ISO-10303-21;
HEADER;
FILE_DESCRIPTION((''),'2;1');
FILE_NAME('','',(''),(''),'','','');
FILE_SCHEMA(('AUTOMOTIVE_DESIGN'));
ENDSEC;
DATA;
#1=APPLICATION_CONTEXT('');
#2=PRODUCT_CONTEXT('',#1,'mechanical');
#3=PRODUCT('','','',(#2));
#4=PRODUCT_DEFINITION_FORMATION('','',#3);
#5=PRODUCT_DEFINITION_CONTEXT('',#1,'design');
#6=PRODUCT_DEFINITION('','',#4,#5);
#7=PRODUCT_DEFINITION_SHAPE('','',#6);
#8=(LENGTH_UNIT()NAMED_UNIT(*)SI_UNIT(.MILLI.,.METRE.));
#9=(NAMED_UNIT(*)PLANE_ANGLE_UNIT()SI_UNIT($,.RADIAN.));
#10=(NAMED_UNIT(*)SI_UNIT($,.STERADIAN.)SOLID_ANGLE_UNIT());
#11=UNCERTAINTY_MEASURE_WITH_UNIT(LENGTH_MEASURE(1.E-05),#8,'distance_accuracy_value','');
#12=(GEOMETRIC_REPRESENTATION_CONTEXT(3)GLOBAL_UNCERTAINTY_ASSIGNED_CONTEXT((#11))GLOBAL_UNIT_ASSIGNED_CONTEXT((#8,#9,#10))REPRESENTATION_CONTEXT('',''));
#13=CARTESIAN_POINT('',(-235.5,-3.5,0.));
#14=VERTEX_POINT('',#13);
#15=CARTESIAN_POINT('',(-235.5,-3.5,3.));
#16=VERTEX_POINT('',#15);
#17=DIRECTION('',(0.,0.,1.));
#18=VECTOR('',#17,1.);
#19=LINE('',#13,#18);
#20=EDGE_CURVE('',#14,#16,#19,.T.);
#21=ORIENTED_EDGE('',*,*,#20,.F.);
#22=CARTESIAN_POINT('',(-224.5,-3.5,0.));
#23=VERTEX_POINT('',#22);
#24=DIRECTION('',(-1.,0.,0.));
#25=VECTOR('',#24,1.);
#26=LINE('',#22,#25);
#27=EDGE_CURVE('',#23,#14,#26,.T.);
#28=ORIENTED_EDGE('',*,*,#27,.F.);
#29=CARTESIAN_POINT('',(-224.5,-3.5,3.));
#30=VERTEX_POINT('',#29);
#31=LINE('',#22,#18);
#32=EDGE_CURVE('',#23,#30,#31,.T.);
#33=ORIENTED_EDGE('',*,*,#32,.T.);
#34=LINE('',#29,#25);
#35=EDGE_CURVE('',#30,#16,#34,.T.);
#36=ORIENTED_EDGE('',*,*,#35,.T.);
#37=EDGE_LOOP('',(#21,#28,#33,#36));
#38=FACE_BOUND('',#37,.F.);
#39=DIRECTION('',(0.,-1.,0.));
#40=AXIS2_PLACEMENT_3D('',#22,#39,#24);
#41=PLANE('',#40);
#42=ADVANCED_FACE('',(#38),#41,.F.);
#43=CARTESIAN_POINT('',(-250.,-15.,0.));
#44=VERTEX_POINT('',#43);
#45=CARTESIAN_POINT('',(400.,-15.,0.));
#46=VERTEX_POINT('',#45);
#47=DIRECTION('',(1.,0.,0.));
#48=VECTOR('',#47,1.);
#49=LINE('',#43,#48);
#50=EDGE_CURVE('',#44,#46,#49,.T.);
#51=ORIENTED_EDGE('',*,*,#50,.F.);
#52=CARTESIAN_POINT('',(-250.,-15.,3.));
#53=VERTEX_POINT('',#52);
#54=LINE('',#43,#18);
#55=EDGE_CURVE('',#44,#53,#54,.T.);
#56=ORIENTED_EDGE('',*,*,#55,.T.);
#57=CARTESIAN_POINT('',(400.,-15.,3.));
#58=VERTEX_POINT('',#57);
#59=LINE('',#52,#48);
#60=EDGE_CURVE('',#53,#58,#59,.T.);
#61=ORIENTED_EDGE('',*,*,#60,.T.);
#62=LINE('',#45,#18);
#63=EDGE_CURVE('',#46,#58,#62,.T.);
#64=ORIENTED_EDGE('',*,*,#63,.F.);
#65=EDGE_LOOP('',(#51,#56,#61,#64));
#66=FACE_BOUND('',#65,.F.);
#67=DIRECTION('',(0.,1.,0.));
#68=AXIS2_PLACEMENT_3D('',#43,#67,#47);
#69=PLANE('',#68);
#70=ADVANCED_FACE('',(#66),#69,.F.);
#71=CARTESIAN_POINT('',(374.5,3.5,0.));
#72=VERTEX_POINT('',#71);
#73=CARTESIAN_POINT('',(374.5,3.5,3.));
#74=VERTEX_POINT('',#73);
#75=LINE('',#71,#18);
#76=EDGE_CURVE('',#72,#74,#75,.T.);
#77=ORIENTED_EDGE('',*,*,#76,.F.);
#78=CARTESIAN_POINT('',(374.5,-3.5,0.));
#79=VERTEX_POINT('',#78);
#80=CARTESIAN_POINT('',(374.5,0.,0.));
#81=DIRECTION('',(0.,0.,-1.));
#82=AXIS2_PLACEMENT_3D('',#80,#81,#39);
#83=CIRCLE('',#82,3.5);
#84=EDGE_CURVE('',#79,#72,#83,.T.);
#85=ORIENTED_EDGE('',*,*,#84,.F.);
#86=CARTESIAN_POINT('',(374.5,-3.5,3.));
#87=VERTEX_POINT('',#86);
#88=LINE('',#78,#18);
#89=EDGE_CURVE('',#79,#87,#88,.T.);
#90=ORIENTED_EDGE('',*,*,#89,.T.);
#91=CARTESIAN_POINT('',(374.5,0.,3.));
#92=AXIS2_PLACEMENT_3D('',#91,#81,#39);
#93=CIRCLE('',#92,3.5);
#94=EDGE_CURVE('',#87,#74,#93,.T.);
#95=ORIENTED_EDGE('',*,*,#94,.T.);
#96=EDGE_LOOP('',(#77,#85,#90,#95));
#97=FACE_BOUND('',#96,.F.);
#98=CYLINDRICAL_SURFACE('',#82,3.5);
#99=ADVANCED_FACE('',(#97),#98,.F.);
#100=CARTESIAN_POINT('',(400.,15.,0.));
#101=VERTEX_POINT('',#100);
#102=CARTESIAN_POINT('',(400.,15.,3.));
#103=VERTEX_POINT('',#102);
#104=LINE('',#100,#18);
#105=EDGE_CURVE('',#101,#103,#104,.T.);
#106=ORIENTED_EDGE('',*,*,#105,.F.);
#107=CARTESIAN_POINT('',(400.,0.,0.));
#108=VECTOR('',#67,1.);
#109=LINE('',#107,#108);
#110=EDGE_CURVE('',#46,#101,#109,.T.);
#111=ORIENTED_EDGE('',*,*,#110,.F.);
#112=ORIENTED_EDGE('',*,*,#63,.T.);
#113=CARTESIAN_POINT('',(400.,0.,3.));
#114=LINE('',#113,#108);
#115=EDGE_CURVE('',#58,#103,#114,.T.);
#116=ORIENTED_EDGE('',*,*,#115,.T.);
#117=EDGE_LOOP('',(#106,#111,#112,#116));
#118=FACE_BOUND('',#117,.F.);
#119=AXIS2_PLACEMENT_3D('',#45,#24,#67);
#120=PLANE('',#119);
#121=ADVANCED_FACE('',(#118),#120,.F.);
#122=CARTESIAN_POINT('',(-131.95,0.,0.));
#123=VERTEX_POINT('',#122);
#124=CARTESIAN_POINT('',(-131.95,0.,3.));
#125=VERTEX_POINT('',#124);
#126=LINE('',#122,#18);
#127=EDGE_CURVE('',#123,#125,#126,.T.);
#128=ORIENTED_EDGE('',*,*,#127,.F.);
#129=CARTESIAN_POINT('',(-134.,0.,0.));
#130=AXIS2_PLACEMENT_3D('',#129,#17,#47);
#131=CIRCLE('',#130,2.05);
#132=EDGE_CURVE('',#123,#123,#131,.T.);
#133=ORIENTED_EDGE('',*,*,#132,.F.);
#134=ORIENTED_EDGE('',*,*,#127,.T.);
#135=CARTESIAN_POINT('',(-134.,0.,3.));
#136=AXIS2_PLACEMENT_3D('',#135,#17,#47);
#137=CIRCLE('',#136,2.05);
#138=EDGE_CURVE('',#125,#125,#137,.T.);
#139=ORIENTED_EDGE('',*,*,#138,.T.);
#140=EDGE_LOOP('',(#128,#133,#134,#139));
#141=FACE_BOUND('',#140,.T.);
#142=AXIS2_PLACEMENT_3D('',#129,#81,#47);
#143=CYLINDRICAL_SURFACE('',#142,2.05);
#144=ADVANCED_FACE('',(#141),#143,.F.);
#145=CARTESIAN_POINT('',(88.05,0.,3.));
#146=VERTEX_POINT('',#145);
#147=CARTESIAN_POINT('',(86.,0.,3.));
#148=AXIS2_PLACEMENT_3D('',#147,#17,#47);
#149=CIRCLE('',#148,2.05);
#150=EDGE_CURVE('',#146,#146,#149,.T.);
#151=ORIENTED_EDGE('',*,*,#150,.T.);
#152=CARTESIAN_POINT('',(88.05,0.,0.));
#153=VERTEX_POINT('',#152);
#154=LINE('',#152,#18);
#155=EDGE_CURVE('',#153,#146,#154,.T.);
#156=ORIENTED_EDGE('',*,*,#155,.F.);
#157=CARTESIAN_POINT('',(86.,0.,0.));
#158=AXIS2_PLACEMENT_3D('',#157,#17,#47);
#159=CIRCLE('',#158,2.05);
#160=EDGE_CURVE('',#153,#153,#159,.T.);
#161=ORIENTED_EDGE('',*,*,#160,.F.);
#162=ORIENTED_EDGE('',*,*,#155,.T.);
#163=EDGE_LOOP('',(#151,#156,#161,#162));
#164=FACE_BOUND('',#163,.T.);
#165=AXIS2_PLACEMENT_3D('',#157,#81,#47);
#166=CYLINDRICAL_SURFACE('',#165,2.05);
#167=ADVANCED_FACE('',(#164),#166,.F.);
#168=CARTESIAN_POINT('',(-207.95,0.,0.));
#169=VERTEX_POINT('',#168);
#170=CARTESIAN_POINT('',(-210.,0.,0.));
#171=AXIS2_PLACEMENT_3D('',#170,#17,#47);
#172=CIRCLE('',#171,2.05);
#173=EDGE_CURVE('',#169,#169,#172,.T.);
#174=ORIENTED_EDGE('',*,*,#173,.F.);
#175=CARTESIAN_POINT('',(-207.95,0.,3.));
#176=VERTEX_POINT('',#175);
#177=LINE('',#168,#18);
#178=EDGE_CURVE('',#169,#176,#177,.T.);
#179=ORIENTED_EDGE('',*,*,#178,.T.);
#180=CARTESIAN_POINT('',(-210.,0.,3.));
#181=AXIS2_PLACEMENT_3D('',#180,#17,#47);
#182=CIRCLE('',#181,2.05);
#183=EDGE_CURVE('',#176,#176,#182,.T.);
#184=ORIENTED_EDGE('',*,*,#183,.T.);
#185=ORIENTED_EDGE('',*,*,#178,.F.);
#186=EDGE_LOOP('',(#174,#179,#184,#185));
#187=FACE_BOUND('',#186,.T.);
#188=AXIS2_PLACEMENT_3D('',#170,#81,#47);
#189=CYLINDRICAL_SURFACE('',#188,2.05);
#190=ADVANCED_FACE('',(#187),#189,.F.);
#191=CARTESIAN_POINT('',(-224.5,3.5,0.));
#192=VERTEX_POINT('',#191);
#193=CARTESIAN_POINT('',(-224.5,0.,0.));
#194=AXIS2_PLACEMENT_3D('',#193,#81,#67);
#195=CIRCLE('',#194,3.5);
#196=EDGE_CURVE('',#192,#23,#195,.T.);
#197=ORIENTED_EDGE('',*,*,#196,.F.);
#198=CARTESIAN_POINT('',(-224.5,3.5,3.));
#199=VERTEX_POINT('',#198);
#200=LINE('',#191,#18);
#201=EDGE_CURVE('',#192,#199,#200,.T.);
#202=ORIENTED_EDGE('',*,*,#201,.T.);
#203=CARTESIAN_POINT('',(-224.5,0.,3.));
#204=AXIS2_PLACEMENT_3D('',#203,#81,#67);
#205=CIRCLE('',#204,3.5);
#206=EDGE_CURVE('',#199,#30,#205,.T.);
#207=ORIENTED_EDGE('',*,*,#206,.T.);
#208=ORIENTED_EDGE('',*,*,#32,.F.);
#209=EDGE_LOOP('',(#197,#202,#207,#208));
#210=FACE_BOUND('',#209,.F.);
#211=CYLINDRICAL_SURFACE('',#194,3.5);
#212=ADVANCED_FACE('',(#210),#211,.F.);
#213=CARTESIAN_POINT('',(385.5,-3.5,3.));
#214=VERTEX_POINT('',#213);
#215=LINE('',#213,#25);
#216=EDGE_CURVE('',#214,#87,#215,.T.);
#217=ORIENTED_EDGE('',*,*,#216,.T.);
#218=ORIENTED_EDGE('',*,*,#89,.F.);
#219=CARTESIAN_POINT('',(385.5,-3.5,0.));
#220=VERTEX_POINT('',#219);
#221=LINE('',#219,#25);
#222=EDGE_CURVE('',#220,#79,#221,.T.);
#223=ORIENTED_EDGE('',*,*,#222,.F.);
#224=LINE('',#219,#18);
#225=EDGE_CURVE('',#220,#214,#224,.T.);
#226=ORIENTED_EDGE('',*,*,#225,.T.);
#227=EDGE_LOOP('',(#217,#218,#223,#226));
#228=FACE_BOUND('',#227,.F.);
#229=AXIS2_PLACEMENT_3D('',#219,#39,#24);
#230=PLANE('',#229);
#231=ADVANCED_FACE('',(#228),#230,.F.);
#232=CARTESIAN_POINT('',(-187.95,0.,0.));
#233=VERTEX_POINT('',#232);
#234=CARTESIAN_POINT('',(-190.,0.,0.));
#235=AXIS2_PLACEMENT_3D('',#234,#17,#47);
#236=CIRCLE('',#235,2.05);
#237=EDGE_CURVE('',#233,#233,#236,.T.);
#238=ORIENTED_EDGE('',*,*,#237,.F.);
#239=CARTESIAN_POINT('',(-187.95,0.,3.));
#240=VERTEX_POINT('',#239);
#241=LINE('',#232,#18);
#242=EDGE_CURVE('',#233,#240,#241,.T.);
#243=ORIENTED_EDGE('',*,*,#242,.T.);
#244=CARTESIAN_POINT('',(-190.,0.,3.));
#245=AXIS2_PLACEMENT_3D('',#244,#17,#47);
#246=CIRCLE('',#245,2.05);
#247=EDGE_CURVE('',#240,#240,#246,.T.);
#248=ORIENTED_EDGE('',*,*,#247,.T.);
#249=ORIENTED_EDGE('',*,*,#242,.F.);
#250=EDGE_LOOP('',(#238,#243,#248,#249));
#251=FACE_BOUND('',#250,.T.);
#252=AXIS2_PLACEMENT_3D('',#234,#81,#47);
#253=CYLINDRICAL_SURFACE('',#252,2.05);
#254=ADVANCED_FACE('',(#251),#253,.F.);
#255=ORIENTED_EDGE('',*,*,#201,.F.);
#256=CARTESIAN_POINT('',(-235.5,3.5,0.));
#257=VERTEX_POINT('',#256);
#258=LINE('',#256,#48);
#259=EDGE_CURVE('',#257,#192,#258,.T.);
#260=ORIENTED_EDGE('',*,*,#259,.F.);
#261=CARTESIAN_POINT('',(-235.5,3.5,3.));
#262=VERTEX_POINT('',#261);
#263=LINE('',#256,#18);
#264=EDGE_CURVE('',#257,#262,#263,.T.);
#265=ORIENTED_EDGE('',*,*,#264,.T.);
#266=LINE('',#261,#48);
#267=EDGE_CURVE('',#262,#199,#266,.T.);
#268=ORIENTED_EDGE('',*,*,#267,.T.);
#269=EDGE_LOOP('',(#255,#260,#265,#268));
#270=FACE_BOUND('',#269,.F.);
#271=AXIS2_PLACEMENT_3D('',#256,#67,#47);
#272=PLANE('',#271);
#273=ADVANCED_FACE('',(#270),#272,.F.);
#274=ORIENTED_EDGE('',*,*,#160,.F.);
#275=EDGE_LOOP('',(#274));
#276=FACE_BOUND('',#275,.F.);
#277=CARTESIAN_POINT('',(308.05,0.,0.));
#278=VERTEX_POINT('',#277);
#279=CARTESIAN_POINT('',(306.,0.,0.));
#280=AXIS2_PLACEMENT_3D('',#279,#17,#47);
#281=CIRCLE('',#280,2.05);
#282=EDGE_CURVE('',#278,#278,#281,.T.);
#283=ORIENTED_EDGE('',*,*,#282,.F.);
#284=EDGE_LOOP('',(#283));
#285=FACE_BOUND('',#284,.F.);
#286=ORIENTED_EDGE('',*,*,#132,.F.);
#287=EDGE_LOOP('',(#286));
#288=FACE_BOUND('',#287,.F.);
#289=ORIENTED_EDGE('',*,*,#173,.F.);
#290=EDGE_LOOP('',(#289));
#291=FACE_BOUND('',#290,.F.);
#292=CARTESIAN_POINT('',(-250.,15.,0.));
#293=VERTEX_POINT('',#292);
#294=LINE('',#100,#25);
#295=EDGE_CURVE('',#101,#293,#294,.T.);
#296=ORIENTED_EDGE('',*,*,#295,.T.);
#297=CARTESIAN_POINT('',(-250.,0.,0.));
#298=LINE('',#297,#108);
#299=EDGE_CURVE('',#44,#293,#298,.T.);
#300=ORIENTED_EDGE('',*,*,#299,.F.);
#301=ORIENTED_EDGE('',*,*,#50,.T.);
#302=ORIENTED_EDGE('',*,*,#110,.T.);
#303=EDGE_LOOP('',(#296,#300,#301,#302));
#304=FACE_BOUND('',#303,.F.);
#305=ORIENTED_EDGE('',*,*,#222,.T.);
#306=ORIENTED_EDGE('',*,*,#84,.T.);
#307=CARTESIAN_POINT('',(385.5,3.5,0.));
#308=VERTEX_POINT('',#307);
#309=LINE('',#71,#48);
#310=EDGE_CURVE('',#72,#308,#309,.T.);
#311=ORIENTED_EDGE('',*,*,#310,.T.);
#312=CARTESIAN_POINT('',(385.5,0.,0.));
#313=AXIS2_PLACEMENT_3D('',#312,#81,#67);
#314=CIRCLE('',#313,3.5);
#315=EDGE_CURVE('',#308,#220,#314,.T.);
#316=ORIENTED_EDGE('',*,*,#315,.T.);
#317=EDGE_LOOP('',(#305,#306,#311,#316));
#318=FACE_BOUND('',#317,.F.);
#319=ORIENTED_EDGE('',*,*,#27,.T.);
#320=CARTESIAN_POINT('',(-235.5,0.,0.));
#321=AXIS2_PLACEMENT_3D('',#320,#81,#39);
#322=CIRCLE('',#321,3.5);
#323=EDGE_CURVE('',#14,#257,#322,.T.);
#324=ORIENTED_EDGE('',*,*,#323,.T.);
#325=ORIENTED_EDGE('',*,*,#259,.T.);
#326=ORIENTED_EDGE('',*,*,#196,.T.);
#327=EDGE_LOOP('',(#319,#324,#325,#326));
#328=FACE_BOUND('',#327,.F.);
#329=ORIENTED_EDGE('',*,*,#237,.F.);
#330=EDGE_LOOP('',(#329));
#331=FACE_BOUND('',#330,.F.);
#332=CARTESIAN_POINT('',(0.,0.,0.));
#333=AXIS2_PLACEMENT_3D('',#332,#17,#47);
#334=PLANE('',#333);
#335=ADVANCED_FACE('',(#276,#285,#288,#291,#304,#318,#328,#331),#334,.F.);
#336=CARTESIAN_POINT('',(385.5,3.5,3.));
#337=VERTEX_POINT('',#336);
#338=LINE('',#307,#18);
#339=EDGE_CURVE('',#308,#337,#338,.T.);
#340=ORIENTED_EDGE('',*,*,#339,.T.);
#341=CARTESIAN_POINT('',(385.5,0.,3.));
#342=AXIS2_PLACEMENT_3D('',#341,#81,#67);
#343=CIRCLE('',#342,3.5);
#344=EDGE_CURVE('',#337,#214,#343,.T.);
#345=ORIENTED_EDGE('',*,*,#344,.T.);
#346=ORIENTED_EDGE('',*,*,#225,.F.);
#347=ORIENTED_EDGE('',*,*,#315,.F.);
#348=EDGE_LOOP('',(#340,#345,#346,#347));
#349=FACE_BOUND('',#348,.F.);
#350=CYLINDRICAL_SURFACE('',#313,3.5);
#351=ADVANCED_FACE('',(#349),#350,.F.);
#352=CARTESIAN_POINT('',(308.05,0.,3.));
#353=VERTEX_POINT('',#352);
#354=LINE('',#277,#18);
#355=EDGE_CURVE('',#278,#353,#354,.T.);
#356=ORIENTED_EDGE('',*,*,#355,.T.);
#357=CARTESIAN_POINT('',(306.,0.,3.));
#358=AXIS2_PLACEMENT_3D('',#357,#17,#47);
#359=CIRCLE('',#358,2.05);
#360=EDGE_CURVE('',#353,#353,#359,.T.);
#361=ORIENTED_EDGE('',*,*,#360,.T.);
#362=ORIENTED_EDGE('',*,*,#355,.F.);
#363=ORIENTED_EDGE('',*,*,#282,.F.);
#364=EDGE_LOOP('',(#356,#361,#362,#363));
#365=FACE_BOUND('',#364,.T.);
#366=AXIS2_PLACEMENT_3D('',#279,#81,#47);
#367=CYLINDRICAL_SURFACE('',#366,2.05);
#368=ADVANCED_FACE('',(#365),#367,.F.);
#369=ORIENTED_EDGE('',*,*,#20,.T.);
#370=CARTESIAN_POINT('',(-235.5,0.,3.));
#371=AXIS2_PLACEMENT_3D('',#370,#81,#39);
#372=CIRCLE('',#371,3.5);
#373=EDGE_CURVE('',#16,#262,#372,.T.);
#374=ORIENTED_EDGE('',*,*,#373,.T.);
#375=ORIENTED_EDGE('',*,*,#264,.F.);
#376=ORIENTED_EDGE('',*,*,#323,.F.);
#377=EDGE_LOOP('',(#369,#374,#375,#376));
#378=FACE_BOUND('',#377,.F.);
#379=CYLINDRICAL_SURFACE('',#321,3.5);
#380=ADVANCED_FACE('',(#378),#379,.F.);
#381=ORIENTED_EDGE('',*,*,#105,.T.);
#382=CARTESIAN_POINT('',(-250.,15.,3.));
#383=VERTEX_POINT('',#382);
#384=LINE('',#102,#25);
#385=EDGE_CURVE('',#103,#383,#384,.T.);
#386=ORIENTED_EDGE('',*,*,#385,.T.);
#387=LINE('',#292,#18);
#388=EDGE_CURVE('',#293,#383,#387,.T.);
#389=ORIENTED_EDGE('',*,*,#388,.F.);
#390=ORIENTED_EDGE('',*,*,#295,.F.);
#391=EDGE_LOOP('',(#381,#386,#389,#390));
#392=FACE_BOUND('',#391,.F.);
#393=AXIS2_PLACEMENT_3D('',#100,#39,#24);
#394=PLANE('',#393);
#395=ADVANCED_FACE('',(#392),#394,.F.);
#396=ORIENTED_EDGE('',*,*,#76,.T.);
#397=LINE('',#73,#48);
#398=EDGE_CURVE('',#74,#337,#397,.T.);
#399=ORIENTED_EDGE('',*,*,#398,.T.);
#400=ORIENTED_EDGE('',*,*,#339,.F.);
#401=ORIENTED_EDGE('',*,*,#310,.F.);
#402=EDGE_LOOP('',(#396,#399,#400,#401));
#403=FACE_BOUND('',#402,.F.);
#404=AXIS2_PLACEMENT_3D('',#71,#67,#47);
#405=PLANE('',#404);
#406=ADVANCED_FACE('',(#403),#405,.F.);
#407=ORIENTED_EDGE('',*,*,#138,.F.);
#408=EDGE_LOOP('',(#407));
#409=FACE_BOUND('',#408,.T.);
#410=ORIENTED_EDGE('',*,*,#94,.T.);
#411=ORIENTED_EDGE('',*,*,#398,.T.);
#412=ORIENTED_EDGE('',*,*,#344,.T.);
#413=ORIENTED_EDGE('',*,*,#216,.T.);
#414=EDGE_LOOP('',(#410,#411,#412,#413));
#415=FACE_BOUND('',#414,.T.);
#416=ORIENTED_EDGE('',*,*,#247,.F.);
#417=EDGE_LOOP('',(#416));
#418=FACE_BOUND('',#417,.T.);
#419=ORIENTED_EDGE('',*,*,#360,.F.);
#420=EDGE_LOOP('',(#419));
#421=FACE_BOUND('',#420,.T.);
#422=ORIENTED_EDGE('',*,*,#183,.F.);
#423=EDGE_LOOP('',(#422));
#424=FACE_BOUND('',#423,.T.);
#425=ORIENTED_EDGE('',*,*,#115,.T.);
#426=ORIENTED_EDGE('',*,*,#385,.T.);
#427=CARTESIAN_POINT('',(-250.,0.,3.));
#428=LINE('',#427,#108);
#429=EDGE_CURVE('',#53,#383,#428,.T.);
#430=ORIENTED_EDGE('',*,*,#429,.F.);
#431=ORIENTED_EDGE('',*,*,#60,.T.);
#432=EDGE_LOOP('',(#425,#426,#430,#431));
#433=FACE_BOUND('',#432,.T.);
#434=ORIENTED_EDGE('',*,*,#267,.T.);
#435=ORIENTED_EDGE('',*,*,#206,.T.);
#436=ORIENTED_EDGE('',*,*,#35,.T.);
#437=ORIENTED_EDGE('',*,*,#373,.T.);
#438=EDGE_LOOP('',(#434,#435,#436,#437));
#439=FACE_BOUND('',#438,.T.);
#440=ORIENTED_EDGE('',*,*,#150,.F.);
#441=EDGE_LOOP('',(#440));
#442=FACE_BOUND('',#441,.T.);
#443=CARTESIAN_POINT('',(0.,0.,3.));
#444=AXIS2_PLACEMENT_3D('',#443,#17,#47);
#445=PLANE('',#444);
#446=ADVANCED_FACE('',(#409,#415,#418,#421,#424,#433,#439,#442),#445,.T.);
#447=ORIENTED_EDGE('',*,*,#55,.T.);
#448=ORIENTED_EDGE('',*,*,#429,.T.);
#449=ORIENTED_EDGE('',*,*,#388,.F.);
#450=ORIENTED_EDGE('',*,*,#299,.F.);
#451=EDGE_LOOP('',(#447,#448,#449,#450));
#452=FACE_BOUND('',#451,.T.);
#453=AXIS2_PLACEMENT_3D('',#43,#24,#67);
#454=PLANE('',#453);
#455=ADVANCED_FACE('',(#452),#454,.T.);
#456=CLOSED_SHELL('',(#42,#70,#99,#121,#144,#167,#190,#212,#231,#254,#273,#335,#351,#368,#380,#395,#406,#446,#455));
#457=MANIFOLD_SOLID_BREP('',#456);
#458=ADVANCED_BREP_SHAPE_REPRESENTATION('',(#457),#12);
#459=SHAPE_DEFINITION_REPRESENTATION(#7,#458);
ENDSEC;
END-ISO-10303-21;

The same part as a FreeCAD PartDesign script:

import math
import FreeCAD as App
import Part
import Sketcher

V = App.Vector
Q = App.Units.Quantity

doc = App.newDocument("Part")
body = doc.addObject("PartDesign::Body", "Body")

# Sketch on XY plane
sketch1 = doc.addObject("Sketcher::SketchObject", "Sketch")
body.addObject(sketch1)
sketch1.AttachmentSupport = (doc.XY_Plane, [""])
sketch1.MapMode = "FlatFace"
sketch1.addGeometry(Part.LineSegment(V(-250, 15, 0), V(-250, -15, 0)), False)
sketch1.addGeometry(Part.LineSegment(V(-250, -15, 0), V(400, -15, 0)), False)
sketch1.addGeometry(Part.LineSegment(V(400, -15, 0), V(400, 15, 0)), False)
sketch1.addGeometry(Part.LineSegment(V(400, 15, 0), V(-250, 15, 0)), False)
sketch1.addGeometry(Part.LineSegment(V(-235.5, 3.5, 0), V(-224.5, 3.5, 0)), False)
sketch1.addGeometry(Part.ArcOfCircle(Part.Circle(V(-224.5, 0, 0), V(0, 0, 1), 3.5), math.radians(-90), math.radians(90)), False)
sketch1.addGeometry(Part.LineSegment(V(-224.5, -3.5, 0), V(-235.5, -3.5, 0)), False)
sketch1.addGeometry(Part.ArcOfCircle(Part.Circle(V(-235.5, 0, 0), V(0, 0, 1), 3.5), math.radians(90), math.radians(270)), False)
sketch1.addGeometry(Part.Circle(V(-210, 0, 0), V(0, 0, 1), 2.05), False)
sketch1.addGeometry(Part.Circle(V(-190, 0, 0), V(0, 0, 1), 2.05), False)
sketch1.addGeometry(Part.Circle(V(-134, 0, 0), V(0, 0, 1), 2.05), False)
sketch1.addGeometry(Part.Circle(V(86, 0, 0), V(0, 0, 1), 2.05), False)
sketch1.addGeometry(Part.Circle(V(306, 0, 0), V(0, 0, 1), 2.05), False)
sketch1.addGeometry(Part.LineSegment(V(374.5, 3.5, 0), V(385.5, 3.5, 0)), False)
sketch1.addGeometry(Part.ArcOfCircle(Part.Circle(V(385.5, 0, 0), V(0, 0, 1), 3.5), math.radians(-90), math.radians(90)), False)
sketch1.addGeometry(Part.LineSegment(V(385.5, -3.5, 0), V(374.5, -3.5, 0)), False)
sketch1.addGeometry(Part.ArcOfCircle(Part.Circle(V(374.5, 0, 0), V(0, 0, 1), 3.5), math.radians(90), math.radians(270)), False)
sketch1.addConstraint(Sketcher.Constraint("Coincident", 0, 2, 1, 1))
sketch1.addConstraint(Sketcher.Constraint("Coincident", 1, 2, 2, 1))
sketch1.addConstraint(Sketcher.Constraint("Coincident", 2, 2, 3, 1))
sketch1.addConstraint(Sketcher.Constraint("Coincident", 3, 2, 0, 1))
sketch1.addConstraint(Sketcher.Constraint("Tangent", 4, 2, 5, 2))
sketch1.addConstraint(Sketcher.Constraint("Tangent", 5, 1, 6, 1))
sketch1.addConstraint(Sketcher.Constraint("Tangent", 6, 2, 7, 2))
sketch1.addConstraint(Sketcher.Constraint("Tangent", 7, 1, 4, 1))
sketch1.addConstraint(Sketcher.Constraint("Tangent", 13, 2, 14, 2))
sketch1.addConstraint(Sketcher.Constraint("Tangent", 14, 1, 15, 1))
sketch1.addConstraint(Sketcher.Constraint("Tangent", 15, 2, 16, 2))
sketch1.addConstraint(Sketcher.Constraint("Tangent", 16, 1, 13, 1))
sketch1.addConstraint(Sketcher.Constraint("Vertical", 0))
sketch1.addConstraint(Sketcher.Constraint("Horizontal", 1))
sketch1.addConstraint(Sketcher.Constraint("Vertical", 2))
sketch1.addConstraint(Sketcher.Constraint("Horizontal", 3))
sketch1.addConstraint(Sketcher.Constraint("Horizontal", 4))
sketch1.addConstraint(Sketcher.Constraint("Horizontal", 6))
sketch1.addConstraint(Sketcher.Constraint("Horizontal", 13))
sketch1.addConstraint(Sketcher.Constraint("Horizontal", 15))
sketch1.addConstraint(Sketcher.Constraint("Equal", 8, 9))
sketch1.addConstraint(Sketcher.Constraint("Equal", 9, 10))
sketch1.addConstraint(Sketcher.Constraint("Equal", 10, 11))
sketch1.addConstraint(Sketcher.Constraint("Equal", 11, 12))
sketch1.addConstraint(Sketcher.Constraint("Equal", 7, 14))
sketch1.addConstraint(Sketcher.Constraint("PointOnObject", 5, 3, -1))
sketch1.addConstraint(Sketcher.Constraint("PointOnObject", 8, 3, -1))
sketch1.addConstraint(Sketcher.Constraint("PointOnObject", 9, 3, -1))
sketch1.addConstraint(Sketcher.Constraint("PointOnObject", 10, 3, -1))
sketch1.addConstraint(Sketcher.Constraint("PointOnObject", 11, 3, -1))
sketch1.addConstraint(Sketcher.Constraint("PointOnObject", 12, 3, -1))
sketch1.addConstraint(Sketcher.Constraint("PointOnObject", 14, 3, -1))
sketch1.addConstraint(Sketcher.Constraint("Equal", 6, 13))
sketch1.addConstraint(Sketcher.Constraint("Diameter", 8, Q("4.1 mm")))
sketch1.addConstraint(Sketcher.Constraint("Radius", 5, Q("3.5 mm")))
sketch1.addConstraint(Sketcher.Constraint("DistanceX", 1, 1, 1, 2, Q("650 mm")))
sketch1.addConstraint(Sketcher.Constraint("DistanceX", 4, 1, 4, 2, Q("11 mm")))
sketch1.addConstraint(Sketcher.Constraint("DistanceY", 0, 2, 0, 1, Q("30 mm")))
sketch1.addConstraint(Sketcher.Constraint("DistanceX", 8, 3, -1, 1, Q("210 mm")))
sketch1.addConstraint(Sketcher.Constraint("DistanceX", 9, 3, -1, 1, Q("190 mm")))
sketch1.addConstraint(Sketcher.Constraint("DistanceX", 10, 3, -1, 1, Q("134 mm")))
sketch1.addConstraint(Sketcher.Constraint("DistanceX", -1, 1, 11, 3, Q("86 mm")))
sketch1.addConstraint(Sketcher.Constraint("DistanceX", -1, 1, 12, 3, Q("306 mm")))
sketch1.addConstraint(Sketcher.Constraint("DistanceX", 0, 2, -1, 1, Q("250 mm")))
sketch1.addConstraint(Sketcher.Constraint("DistanceY", 0, 2, -1, 1, Q("15 mm")))
sketch1.addConstraint(Sketcher.Constraint("DistanceX", 5, 3, -1, 1, Q("224.5 mm")))
sketch1.addConstraint(Sketcher.Constraint("DistanceX", -1, 1, 14, 3, Q("385.5 mm")))
pad1 = doc.addObject("PartDesign::Pad", "Pad")
body.addObject(pad1)
pad1.Profile = sketch1
pad1.Length = 3

doc.recompute()
